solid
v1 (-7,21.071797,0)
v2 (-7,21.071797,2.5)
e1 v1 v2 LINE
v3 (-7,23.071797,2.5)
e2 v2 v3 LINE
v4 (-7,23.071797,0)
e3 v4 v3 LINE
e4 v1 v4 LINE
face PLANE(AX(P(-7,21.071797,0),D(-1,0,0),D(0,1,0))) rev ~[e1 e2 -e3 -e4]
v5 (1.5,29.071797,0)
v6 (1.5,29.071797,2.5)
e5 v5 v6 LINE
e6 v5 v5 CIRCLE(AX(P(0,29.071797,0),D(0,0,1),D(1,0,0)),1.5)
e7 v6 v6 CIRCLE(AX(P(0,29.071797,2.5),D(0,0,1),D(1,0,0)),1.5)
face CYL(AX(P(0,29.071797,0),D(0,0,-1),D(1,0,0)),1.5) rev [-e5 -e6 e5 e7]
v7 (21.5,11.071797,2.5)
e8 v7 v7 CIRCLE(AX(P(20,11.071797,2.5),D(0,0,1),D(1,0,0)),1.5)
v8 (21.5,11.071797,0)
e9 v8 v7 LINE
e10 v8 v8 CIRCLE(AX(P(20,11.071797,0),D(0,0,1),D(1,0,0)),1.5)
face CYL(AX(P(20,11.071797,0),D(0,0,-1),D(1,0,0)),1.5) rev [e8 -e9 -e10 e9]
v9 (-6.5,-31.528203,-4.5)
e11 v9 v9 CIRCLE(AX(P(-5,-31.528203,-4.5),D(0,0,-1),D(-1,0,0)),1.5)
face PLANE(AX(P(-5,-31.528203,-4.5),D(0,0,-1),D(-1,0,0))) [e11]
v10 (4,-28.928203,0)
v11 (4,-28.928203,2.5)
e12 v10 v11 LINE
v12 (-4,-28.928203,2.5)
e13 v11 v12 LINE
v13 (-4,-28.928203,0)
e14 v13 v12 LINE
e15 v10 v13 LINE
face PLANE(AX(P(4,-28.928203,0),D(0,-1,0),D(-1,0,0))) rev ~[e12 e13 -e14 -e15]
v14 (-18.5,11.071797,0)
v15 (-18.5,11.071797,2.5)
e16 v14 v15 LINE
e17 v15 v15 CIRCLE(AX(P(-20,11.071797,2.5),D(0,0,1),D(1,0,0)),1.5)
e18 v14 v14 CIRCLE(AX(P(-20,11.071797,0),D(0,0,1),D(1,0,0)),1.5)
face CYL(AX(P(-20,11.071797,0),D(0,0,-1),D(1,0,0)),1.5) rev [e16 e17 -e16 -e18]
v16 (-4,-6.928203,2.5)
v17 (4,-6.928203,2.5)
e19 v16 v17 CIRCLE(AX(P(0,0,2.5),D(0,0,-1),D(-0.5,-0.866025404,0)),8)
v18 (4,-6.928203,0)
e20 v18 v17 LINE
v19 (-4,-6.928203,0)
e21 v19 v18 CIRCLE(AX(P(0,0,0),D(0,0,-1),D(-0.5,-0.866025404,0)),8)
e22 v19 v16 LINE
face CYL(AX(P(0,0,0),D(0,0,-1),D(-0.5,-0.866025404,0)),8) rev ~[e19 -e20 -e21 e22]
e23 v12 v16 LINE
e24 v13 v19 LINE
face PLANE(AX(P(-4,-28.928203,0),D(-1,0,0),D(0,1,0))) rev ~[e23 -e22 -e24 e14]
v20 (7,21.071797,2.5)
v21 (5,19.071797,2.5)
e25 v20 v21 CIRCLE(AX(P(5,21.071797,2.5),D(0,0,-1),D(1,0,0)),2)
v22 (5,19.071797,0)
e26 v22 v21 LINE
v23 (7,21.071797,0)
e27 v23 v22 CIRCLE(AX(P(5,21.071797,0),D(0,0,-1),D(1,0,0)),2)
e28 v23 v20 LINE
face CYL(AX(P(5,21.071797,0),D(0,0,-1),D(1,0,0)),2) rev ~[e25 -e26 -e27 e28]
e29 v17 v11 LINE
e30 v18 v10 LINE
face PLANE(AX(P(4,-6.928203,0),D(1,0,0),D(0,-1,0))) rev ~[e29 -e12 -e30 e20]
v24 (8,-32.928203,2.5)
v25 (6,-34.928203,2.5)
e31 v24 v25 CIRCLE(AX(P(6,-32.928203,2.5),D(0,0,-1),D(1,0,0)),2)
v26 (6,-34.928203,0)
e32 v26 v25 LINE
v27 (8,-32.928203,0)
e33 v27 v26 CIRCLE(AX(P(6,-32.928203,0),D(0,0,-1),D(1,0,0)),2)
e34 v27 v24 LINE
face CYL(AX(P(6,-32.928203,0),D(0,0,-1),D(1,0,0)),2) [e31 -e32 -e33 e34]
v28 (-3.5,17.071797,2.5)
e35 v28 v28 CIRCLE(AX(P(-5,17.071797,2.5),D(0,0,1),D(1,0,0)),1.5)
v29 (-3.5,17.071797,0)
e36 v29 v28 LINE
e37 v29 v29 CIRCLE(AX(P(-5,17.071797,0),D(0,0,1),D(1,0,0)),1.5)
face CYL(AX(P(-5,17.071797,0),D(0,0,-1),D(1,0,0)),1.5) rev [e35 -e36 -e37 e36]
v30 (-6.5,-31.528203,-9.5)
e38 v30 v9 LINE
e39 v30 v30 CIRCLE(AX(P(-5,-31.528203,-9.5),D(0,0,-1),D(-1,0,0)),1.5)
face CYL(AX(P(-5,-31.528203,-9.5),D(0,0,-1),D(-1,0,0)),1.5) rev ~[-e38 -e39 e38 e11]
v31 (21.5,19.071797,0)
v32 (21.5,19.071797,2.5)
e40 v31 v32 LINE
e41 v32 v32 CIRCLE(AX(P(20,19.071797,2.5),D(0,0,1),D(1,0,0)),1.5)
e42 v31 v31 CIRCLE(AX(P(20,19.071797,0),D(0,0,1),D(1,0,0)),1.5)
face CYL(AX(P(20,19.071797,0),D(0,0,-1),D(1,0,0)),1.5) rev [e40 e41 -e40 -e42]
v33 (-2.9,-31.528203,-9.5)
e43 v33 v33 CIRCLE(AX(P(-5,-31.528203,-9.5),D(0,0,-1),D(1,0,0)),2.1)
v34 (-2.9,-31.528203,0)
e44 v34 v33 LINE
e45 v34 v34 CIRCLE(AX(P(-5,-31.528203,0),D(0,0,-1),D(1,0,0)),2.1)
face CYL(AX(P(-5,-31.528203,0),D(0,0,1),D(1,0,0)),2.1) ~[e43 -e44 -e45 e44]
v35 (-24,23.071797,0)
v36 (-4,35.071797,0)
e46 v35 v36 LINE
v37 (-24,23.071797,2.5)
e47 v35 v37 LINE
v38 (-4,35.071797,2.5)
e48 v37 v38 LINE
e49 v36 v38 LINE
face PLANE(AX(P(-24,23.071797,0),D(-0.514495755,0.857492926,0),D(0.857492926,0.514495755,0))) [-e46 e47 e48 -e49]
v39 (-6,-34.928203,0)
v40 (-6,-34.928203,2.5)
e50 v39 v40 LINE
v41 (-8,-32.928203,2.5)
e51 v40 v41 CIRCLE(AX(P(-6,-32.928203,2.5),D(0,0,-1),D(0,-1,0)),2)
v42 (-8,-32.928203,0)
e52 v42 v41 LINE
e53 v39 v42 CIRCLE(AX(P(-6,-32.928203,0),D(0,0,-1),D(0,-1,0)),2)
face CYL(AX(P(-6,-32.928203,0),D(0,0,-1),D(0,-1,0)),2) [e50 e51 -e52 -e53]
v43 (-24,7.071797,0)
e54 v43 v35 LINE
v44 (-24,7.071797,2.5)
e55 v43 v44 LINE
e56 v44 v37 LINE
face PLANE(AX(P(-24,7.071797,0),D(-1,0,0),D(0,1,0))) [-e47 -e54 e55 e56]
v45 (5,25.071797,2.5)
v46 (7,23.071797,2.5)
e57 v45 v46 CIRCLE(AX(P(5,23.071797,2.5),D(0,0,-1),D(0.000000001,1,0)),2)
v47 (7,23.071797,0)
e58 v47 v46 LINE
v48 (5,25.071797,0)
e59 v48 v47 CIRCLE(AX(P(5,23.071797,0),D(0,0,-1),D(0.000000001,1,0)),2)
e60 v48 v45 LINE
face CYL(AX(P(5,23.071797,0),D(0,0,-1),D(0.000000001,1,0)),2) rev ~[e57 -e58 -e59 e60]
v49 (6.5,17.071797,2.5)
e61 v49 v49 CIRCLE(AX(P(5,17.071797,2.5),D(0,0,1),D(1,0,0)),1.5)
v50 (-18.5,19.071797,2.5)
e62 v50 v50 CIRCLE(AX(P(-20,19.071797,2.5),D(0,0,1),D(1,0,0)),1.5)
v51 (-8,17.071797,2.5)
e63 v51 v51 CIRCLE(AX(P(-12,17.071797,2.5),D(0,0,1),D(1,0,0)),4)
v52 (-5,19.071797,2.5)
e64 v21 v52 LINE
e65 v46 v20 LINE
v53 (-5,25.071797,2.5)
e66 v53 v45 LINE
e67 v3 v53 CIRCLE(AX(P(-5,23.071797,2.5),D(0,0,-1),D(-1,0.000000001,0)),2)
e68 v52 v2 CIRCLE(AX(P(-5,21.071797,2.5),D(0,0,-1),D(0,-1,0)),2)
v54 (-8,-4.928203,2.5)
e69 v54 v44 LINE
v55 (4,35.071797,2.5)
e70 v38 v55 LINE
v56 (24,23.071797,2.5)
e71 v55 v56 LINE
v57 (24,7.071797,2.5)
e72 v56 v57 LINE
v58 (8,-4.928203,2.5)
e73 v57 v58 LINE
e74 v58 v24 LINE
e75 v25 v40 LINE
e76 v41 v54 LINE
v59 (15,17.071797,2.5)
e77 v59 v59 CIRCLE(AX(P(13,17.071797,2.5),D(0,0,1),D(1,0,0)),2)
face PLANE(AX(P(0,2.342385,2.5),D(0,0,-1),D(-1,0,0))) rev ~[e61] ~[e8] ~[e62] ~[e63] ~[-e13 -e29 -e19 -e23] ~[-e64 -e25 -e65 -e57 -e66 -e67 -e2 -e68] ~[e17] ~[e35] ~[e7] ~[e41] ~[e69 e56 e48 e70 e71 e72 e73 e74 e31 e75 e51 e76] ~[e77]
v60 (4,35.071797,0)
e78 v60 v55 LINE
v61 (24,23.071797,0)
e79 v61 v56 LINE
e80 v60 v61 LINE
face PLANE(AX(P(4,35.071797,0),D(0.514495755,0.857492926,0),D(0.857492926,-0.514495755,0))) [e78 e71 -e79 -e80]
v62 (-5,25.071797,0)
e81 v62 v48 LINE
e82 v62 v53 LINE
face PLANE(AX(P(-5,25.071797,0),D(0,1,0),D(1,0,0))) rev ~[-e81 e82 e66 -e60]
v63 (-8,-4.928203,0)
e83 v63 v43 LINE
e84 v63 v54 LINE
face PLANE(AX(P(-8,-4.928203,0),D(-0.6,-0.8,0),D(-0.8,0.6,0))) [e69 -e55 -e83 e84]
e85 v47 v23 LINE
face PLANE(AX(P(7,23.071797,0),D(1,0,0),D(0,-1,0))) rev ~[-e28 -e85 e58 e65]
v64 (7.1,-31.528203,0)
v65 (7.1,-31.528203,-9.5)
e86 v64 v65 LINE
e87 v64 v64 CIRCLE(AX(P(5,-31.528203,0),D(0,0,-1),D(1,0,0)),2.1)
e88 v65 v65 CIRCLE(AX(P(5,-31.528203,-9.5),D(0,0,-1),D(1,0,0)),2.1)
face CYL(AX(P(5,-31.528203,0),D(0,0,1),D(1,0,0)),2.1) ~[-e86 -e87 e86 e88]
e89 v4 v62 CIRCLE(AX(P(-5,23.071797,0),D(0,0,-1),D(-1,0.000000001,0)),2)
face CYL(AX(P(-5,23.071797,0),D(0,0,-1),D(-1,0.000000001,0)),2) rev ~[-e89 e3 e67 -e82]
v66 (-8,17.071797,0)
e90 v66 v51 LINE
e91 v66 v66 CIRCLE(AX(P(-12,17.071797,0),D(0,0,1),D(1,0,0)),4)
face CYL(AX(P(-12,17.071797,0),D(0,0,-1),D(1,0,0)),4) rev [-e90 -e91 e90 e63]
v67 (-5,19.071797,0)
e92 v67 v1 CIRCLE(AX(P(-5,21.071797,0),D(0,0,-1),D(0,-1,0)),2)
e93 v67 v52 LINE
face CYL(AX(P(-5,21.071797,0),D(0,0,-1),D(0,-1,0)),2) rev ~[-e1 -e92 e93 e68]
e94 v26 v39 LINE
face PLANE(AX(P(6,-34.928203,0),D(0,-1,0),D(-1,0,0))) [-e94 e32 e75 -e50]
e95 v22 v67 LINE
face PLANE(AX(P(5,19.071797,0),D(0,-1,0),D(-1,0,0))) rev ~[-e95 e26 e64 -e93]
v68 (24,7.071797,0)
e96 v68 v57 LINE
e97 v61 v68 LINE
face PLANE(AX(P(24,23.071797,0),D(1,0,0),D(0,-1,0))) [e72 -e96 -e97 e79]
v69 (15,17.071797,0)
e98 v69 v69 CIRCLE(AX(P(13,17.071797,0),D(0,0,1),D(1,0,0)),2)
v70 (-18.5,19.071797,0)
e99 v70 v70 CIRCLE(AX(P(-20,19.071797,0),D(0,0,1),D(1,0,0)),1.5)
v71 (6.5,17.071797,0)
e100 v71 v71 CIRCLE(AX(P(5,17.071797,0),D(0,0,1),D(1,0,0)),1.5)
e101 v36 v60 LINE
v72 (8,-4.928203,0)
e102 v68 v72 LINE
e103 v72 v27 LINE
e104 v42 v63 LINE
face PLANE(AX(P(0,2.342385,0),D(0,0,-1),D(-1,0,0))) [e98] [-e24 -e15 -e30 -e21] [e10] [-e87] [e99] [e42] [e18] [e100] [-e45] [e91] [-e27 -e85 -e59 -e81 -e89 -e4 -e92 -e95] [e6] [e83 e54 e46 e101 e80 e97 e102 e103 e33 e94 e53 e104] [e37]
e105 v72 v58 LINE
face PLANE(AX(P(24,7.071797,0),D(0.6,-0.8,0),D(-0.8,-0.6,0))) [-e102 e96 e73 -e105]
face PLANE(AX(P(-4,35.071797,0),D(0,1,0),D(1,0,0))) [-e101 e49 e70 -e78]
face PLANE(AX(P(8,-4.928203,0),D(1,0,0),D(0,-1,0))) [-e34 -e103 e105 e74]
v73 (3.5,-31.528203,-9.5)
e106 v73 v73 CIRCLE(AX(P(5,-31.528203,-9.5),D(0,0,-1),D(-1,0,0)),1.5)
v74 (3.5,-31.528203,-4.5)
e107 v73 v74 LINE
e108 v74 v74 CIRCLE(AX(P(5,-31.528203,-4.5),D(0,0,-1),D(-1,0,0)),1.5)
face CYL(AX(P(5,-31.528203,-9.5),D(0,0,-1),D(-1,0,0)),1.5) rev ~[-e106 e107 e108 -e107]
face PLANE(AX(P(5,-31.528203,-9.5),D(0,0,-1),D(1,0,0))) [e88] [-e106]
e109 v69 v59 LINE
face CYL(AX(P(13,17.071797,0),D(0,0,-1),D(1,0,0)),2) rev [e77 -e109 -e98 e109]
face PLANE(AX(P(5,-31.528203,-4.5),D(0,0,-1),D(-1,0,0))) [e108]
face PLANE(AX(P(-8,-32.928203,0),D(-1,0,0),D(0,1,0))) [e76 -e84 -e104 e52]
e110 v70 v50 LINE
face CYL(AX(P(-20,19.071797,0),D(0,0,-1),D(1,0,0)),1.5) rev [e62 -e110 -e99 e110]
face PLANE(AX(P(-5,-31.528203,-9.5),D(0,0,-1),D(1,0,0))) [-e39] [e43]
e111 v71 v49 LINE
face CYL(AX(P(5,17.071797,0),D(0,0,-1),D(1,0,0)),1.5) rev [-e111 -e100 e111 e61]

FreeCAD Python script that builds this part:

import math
import FreeCAD as App
import Part
import Sketcher
Q = App.Units.Quantity

doc = App.newDocument("Part")
params = doc.addObject("Spreadsheet::Sheet", "Params")
for row, (alias, value) in enumerate([
    ("sketch1_diameter", "3 mm"),
    ("sketch1_diameter2", "4 mm"),
    ("sketch1_diameter3", "8 mm"),
    ("sketch1_radius", "8 mm"),
    ("sketch1_width", "12 mm"),
    ("pad1_length", "2.5 mm"),
    ("sketch2_diameter", "4.2 mm"),
    ("pad2_length", "9.5 mm"),
    ("sketch3_diameter", "3 mm"),
    ("pocket1_length", "5 mm"),
], start=1):
    params.set(f"A{row}", alias)
    params.set(f"B{row}", "=" + value)
    params.setAlias(f"B{row}", alias)

body = doc.addObject("PartDesign::Body", "Body")

# Sketch on XY plane
sketch1 = body.newObject("Sketcher::SketchObject", "Sketch")
sketch1.AttachmentSupport = (doc.getObject("XY_Plane"), [""])
sketch1.MapMode = "FlatFace"
sketch1.addGeometry([
    Part.LineSegment(App.Vector(-24, 23.1, 0), App.Vector(-24, 7.1, 0)),  # 0
    Part.LineSegment(App.Vector(-24, 7.1, 0), App.Vector(-8, -4.9, 0)),  # 1
    Part.LineSegment(App.Vector(-8, -4.9, 0), App.Vector(-8, -32.9, 0)),  # 2
    Part.ArcOfCircle(Part.Circle(App.Vector(-6, -32.9, 0), App.Vector(0, 0, 1), 2), math.radians(180), math.radians(270)),  # 3
    Part.LineSegment(App.Vector(-6, -34.9, 0), App.Vector(6, -34.9, 0)),  # 4
    Part.ArcOfCircle(Part.Circle(App.Vector(6, -32.9, 0), App.Vector(0, 0, 1), 2), math.radians(-90), math.radians(0)),  # 5
    Part.LineSegment(App.Vector(8, -32.9, 0), App.Vector(8, -4.9, 0)),  # 6
    Part.LineSegment(App.Vector(8, -4.9, 0), App.Vector(24, 7.1, 0)),  # 7
    Part.LineSegment(App.Vector(24, 7.1, 0), App.Vector(24, 23.1, 0)),  # 8
    Part.LineSegment(App.Vector(24, 23.1, 0), App.Vector(4, 35.1, 0)),  # 9
    Part.LineSegment(App.Vector(4, 35.1, 0), App.Vector(-4, 35.1, 0)),  # 10
    Part.LineSegment(App.Vector(-4, 35.1, 0), App.Vector(-24, 23.1, 0)),  # 11
    Part.LineSegment(App.Vector(4, -28.9, 0), App.Vector(-4, -28.9, 0)),  # 12
    Part.LineSegment(App.Vector(-4, -28.9, 0), App.Vector(-4, -6.9, 0)),  # 13
    Part.ArcOfCircle(Part.Circle(App.Vector(0, 0, 0), App.Vector(0, 0, 1), 8), math.radians(-60), math.radians(240)),  # 14
    Part.LineSegment(App.Vector(4, -6.9, 0), App.Vector(4, -28.9, 0)),  # 15
    Part.Circle(App.Vector(20, 11.1, 0), App.Vector(0, 0, 1), 1.5),  # 16
    Part.Circle(App.Vector(20, 19.1, 0), App.Vector(0, 0, 1), 1.5),  # 17
    Part.Circle(App.Vector(13, 17.1, 0), App.Vector(0, 0, 1), 2),  # 18
    Part.Circle(App.Vector(5, 17.1, 0), App.Vector(0, 0, 1), 1.5),  # 19
    Part.Circle(App.Vector(-20, 11.1, 0), App.Vector(0, 0, 1), 1.5),  # 20
    Part.Circle(App.Vector(-5, 17.1, 0), App.Vector(0, 0, 1), 1.5),  # 21
    Part.LineSegment(App.Vector(-5, 25.1, 0), App.Vector(5, 25.1, 0)),  # 22
    Part.ArcOfCircle(Part.Circle(App.Vector(5, 23.1, 0), App.Vector(0, 0, 1), 2), math.radians(0), math.radians(90)),  # 23
    Part.LineSegment(App.Vector(7, 23.1, 0), App.Vector(7, 21.1, 0)),  # 24
    Part.ArcOfCircle(Part.Circle(App.Vector(5, 21.1, 0), App.Vector(0, 0, 1), 2), math.radians(-90), math.radians(0)),  # 25
    Part.LineSegment(App.Vector(5, 19.1, 0), App.Vector(-5, 19.1, 0)),  # 26
    Part.ArcOfCircle(Part.Circle(App.Vector(-5, 21.1, 0), App.Vector(0, 0, 1), 2), math.radians(180), math.radians(270)),  # 27
    Part.LineSegment(App.Vector(-7, 21.1, 0), App.Vector(-7, 23.1, 0)),  # 28
    Part.ArcOfCircle(Part.Circle(App.Vector(-5, 23.1, 0), App.Vector(0, 0, 1), 2), math.radians(90), math.radians(180)),  # 29
    Part.Circle(App.Vector(0, 29.1, 0), App.Vector(0, 0, 1), 1.5),  # 30
    Part.Circle(App.Vector(-12, 17.1, 0), App.Vector(0, 0, 1), 4),  # 31
    Part.Circle(App.Vector(-20, 19.1, 0), App.Vector(0, 0, 1), 1.5),  # 32
], False)
sketch1.addConstraint([
    Sketcher.Constraint("Coincident", 0, 2, 1, 1),
    Sketcher.Constraint("Coincident", 1, 2, 2, 1),
    Sketcher.Constraint("Tangent", 2, 2, 3, 1),
    Sketcher.Constraint("Tangent", 3, 2, 4, 1),
    Sketcher.Constraint("Tangent", 4, 2, 5, 1),
    Sketcher.Constraint("Tangent", 5, 2, 6, 1),
    Sketcher.Constraint("Coincident", 6, 2, 7, 1),
    Sketcher.Constraint("Coincident", 7, 2, 8, 1),
    Sketcher.Constraint("Coincident", 8, 2, 9, 1),
    Sketcher.Constraint("Coincident", 9, 2, 10, 1),
    Sketcher.Constraint("Coincident", 10, 2, 11, 1),
    Sketcher.Constraint("Coincident", 11, 2, 0, 1),
    Sketcher.Constraint("Coincident", 12, 2, 13, 1),
    Sketcher.Constraint("Coincident", 13, 2, 14, 2),
    Sketcher.Constraint("Coincident", 14, 1, 15, 1),
    Sketcher.Constraint("Coincident", 15, 2, 12, 1),
    Sketcher.Constraint("Tangent", 22, 2, 23, 2),
    Sketcher.Constraint("Tangent", 23, 1, 24, 1),
    Sketcher.Constraint("Tangent", 24, 2, 25, 2),
    Sketcher.Constraint("Tangent", 25, 1, 26, 1),
    Sketcher.Constraint("Tangent", 26, 2, 27, 2),
    Sketcher.Constraint("Tangent", 27, 1, 28, 1),
    Sketcher.Constraint("Tangent", 28, 2, 29, 2),
    Sketcher.Constraint("Tangent", 29, 1, 22, 1),
    Sketcher.Constraint("Vertical", 0),
    Sketcher.Constraint("Vertical", 2),
    Sketcher.Constraint("Horizontal", 4),
    Sketcher.Constraint("Vertical", 6),
    Sketcher.Constraint("Vertical", 8),
    Sketcher.Constraint("Horizontal", 10),
    Sketcher.Constraint("Horizontal", 12),
    Sketcher.Constraint("Vertical", 13),
    Sketcher.Constraint("Vertical", 15),
    Sketcher.Constraint("Horizontal", 22),
    Sketcher.Constraint("Vertical", 24),
    Sketcher.Constraint("Horizontal", 26),
    Sketcher.Constraint("Vertical", 28),
    Sketcher.Constraint("Coincident", 14, 3, -1, 1),
    Sketcher.Constraint("Equal", 3, 5),
    Sketcher.Constraint("Equal", 16, 17),
    Sketcher.Constraint("Equal", 5, 18),
    Sketcher.Constraint("Equal", 17, 19),
    Sketcher.Constraint("Equal", 19, 20),
    Sketcher.Constraint("Equal", 20, 21),
    Sketcher.Constraint("Equal", 18, 23),
    Sketcher.Constraint("Equal", 23, 25),
    Sketcher.Constraint("Equal", 25, 27),
    Sketcher.Constraint("Equal", 27, 29),
    Sketcher.Constraint("Equal", 21, 30),
    Sketcher.Constraint("Equal", 30, 32),
    Sketcher.Constraint("Symmetric", 16, 3, 20, 3, -2),
    Sketcher.Constraint("Symmetric", 19, 3, 21, 3, -2),
    Sketcher.Constraint("Symmetric", 17, 3, 32, 3, -2),
    Sketcher.Constraint("Symmetric", 1, 2, 6, 2, -2),
    Sketcher.Constraint("Symmetric", 0, 2, 7, 2, -2),
    Sketcher.Constraint("PointOnObject", 30, 3, -2),
    Sketcher.Constraint("Horizontal", 18, 3, 19, 3),
    Sketcher.Constraint("Horizontal", 21, 3, 31, 3),
    Sketcher.Constraint("Horizontal", 29, 3, 8, 2),
    Sketcher.Constraint("Horizontal", 8, 2, 11, 2),
    Sketcher.Constraint("Horizontal", 13, 2, 14, 1),
    Sketcher.Constraint("Horizontal", 32, 3, 25, 1),
    Sketcher.Constraint("Vertical", 16, 3, 17, 3),
    Sketcher.Constraint("Vertical", 19, 3, 23, 3),
    Sketcher.Constraint("Vertical", 21, 3, 27, 3),
    Sketcher.Constraint("Vertical", 10, 2, 12, 2),
    Sketcher.Constraint("Vertical", 9, 2, 14, 1),
    Sketcher.Constraint("Diameter", 16, Q("3 mm")),
    Sketcher.Constraint("Diameter", 18, Q("4 mm")),
    Sketcher.Constraint("Diameter", 31, Q("8 mm")),
    Sketcher.Constraint("Radius", 14, Q("8 mm")),
    Sketcher.Constraint("DistanceX", 4, 1, 4, 2, Q("12 mm")),
    Sketcher.Constraint("DistanceX", 10, 2, 10, 1, Q("8 mm")),
    Sketcher.Constraint("DistanceX", 22, 1, 22, 2, Q("10 mm")),
    Sketcher.Constraint("DistanceY", 0, 2, 0, 1, Q("16 mm")),
    Sketcher.Constraint("DistanceY", 2, 2, 2, 1, Q("28 mm")),
    Sketcher.Constraint("DistanceY", 13, 1, 13, 2, Q("22 mm")),
    Sketcher.Constraint("DistanceY", 24, 2, 24, 1, Q("2 mm")),
    Sketcher.Constraint("Distance", 1, Q("20 mm")),
    Sketcher.Constraint("DistanceX", -1, 1, 16, 3, Q("20 mm")),
    Sketcher.Constraint("DistanceX", -1, 1, 18, 3, Q("13 mm")),
    Sketcher.Constraint("DistanceX", 31, 3, -1, 1, Q("12 mm")),
    Sketcher.Constraint("DistanceX", 0, 2, -1, 1, Q("24 mm")),
    Sketcher.Constraint("DistanceY", 5, 3, 16, 3, Q("44 mm")),
    Sketcher.Constraint("DistanceY", 18, 3, 17, 3, Q("2 mm")),
    Sketcher.Constraint("DistanceY", 23, 3, 30, 3, Q("6 mm")),
    Sketcher.Constraint("DistanceY", 30, 3, 9, 2, Q("6 mm")),
    Sketcher.Constraint("DistanceY", 3, 3, 12, 2, Q("4 mm")),
])
sketch1.setExpression("Constraints[67]", "Params.sketch1_diameter")
sketch1.setExpression("Constraints[68]", "Params.sketch1_diameter2")
sketch1.setExpression("Constraints[69]", "Params.sketch1_diameter3")
sketch1.setExpression("Constraints[70]", "Params.sketch1_radius")
sketch1.setExpression("Constraints[71]", "Params.sketch1_width")
pad1 = body.newObject("PartDesign::Pad", "Pad")
pad1.Profile = sketch1
pad1.setExpression("Length", "Params.pad1_length")

# Sketch on XY plane
sketch2 = body.newObject("Sketcher::SketchObject", "Sketch001")
sketch2.AttachmentSupport = (doc.getObject("XY_Plane"), [""])
sketch2.MapMode = "FlatFace"
sketch2.addGeometry([
    Part.Circle(App.Vector(5, -31.5, 0), App.Vector(0, 0, 1), 2.1),
    Part.Circle(App.Vector(-5, -31.5, 0), App.Vector(0, 0, 1), 2.1),
], False)
sketch2.addConstraint([
    Sketcher.Constraint("Equal", 0, 1),
    Sketcher.Constraint("Symmetric", 0, 3, 1, 3, -2),
    Sketcher.Constraint("Diameter", 0, Q("4.2 mm")),
    Sketcher.Constraint("DistanceX", -1, 1, 0, 3, Q("5 mm")),
    Sketcher.Constraint("DistanceY", 0, 3, -1, 1, Q("31.528203 mm")),
])
sketch2.setExpression("Constraints[2]", "Params.sketch2_diameter")
pad2 = body.newObject("PartDesign::Pad", "Pad001")
pad2.Profile = sketch2
pad2.setExpression("Length", "Params.pad2_length")
pad2.Reversed = True

# Sketch on XY plane
sketch3 = body.newObject("Sketcher::SketchObject", "Sketch002")
sketch3.AttachmentSupport = (doc.getObject("XY_Plane"), [""])
sketch3.MapMode = "FlatFace"
sketch3.AttachmentOffset = App.Placement(App.Vector(0, 0, -9.5), App.Rotation())
sketch3.addGeometry([
    Part.Circle(App.Vector(5, -31.5, 0), App.Vector(0, 0, 1), 1.5),
    Part.Circle(App.Vector(-5, -31.5, 0), App.Vector(0, 0, 1), 1.5),
], False)
sketch3.addConstraint([
    Sketcher.Constraint("Equal", 0, 1),
    Sketcher.Constraint("Symmetric", 0, 3, 1, 3, -2),
    Sketcher.Constraint("Diameter", 0, Q("3 mm")),
    Sketcher.Constraint("DistanceX", -1, 1, 0, 3, Q("5 mm")),
    Sketcher.Constraint("DistanceY", 0, 3, -1, 1, Q("31.528203 mm")),
])
sketch3.setExpression("Constraints[2]", "Params.sketch3_diameter")
pocket1 = body.newObject("PartDesign::Pocket", "Pocket")
pocket1.Profile = sketch3
pocket1.setExpression("Length", "Params.pocket1_length")
pocket1.Reversed = True

doc.recompute()
